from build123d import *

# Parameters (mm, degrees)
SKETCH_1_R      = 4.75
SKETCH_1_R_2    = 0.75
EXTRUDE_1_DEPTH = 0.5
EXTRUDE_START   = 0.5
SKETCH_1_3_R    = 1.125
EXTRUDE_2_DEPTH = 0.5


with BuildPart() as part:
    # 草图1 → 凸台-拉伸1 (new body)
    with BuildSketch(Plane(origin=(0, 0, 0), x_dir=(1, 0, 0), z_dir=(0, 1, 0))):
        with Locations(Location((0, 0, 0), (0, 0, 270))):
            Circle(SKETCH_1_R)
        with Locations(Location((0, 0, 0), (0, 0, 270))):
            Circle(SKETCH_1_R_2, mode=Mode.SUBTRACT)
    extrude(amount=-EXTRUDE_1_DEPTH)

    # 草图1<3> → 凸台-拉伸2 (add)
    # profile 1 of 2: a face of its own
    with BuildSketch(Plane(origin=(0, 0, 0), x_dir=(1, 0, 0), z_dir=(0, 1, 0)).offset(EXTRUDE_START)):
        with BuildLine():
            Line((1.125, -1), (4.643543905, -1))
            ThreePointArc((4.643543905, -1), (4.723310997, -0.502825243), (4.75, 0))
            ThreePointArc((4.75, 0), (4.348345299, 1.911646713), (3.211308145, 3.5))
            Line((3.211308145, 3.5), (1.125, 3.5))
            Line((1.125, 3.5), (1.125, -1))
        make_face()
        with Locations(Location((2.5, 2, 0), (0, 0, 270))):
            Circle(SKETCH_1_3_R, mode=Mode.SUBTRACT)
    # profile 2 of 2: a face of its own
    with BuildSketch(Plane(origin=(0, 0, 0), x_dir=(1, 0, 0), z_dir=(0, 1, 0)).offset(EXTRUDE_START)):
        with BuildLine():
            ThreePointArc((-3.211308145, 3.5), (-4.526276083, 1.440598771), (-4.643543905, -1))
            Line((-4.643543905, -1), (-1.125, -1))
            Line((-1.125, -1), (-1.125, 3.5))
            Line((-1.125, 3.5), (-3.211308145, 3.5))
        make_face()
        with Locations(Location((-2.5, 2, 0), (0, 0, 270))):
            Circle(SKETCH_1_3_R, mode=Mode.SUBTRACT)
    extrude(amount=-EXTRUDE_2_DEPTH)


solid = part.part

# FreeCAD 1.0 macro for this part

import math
import FreeCAD as App
import Part
import Sketcher

V = App.Vector

doc = App.newDocument("Part")
body = doc.addObject("PartDesign::Body", "Body")

# Sketch on XZ plane
sketch1 = body.newObject("Sketcher::SketchObject", "Sketch")
sketch1.AttachmentSupport = (doc.getObject("XZ_Plane"), [""])
sketch1.MapMode = "FlatFace"
sketch1.addGeometry([
    Part.Circle(V(0, 0, 0), V(0, 0, 1), 4.8),
    Part.Circle(V(0, 0, 0), V(0, 0, 1), 0.8),
], False)
sketch1.addConstraint([
    Sketcher.Constraint("Coincident", 0, 3, -1, 1),
    Sketcher.Constraint("Coincident", 1, 3, -1, 1),
    Sketcher.Constraint("Diameter", 0, 9.5),
    Sketcher.Constraint("Diameter", 1, 1.5),
])
pad1 = body.newObject("PartDesign::Pad", "Pad")
pad1.Profile = sketch1
pad1.Length = 0.5

# Sketch on XZ plane
sketch2 = body.newObject("Sketcher::SketchObject", "Sketch001")
sketch2.AttachmentSupport = (doc.getObject("XZ_Plane"), [""])
sketch2.MapMode = "FlatFace"
sketch2.AttachmentOffset = App.Placement(V(0, 0, -0.5), App.Rotation())
sketch2.addGeometry([
    Part.LineSegment(V(1.1, 1, 0), V(4.6, 1, 0)),  # 0
    Part.ArcOfCircle(Part.Circle(V(0, 0, 0), V(0, 0, 1), 4.7), math.radians(0), math.radians(12.15)),  # 1
    Part.ArcOfCircle(Part.Circle(V(0, 0, 0), V(0, 0, 1), 4.8), math.radians(-47), math.radians(0)),  # 2
    Part.LineSegment(V(3.2, -3.5, 0), V(1.1, -3.5, 0)),  # 3
    Part.LineSegment(V(1.1, -3.5, 0), V(1.1, 1, 0)),  # 4
    Part.Circle(V(2.5, -2, 0), V(0, 0, 1), 1.1),  # 5
    Part.ArcOfCircle(Part.Circle(V(0, 0, 0), V(0, 0, 1), 4.8), math.radians(168), math.radians(227)),  # 6
    Part.LineSegment(V(-4.6, 1, 0), V(-1.1, 1, 0)),  # 7
    Part.LineSegment(V(-1.1, 1, 0), V(-1.1, -3.5, 0)),  # 8
    Part.LineSegment(V(-1.1, -3.5, 0), V(-3.2, -3.5, 0)),  # 9
    Part.Circle(V(-2.5, -2, 0), V(0, 0, 1), 1.1),  # 10
], False)
sketch2.addConstraint([
    Sketcher.Constraint("Coincident", 0, 2, 1, 2),
    Sketcher.Constraint("Tangent", 1, 1, 2, 2),
    Sketcher.Constraint("Coincident", 2, 1, 3, 1),
    Sketcher.Constraint("Coincident", 3, 2, 4, 1),
    Sketcher.Constraint("Coincident", 4, 2, 0, 1),
    Sketcher.Constraint("Coincident", 6, 1, 7, 1),
    Sketcher.Constraint("Coincident", 7, 2, 8, 1),
    Sketcher.Constraint("Coincident", 8, 2, 9, 1),
    Sketcher.Constraint("Coincident", 9, 2, 6, 2),
    Sketcher.Constraint("Horizontal", 0),
    Sketcher.Constraint("Horizontal", 3),
    Sketcher.Constraint("Vertical", 4),
    Sketcher.Constraint("Horizontal", 7),
    Sketcher.Constraint("Vertical", 8),
    Sketcher.Constraint("Horizontal", 9),
    Sketcher.Constraint("Coincident", 1, 3, -1, 1),
    Sketcher.Constraint("Coincident", 6, 3, -1, 1),
    Sketcher.Constraint("Equal", 1, 2),
    Sketcher.Constraint("Equal", 2, 6),
    Sketcher.Constraint("Equal", 5, 10),
    Sketcher.Constraint("Symmetric", 5, 3, 10, 3, -2),
    Sketcher.Constraint("Symmetric", 4, 2, 7, 2, -2),
    Sketcher.Constraint("PointOnObject", 1, 1, -1),
    Sketcher.Constraint("Horizontal", 3, 2, 8, 2),
    Sketcher.Constraint("Diameter", 5, 2.25),
    Sketcher.Constraint("Radius", 1, 4.75),
    Sketcher.Constraint("DistanceY", 4, 1, 4, 2, 4.5),
    Sketcher.Constraint("DistanceY", 5, 3, -1, 1, 2.0),
    Sketcher.Constraint("DistanceY", -1, 1, 0, 2, 1.0),
    Sketcher.Constraint("DistanceX", 10, 3, 5, 3, 5.0),
    Sketcher.Constraint("DistanceX", 7, 2, 4, 2, 2.25),
])
pad2 = body.newObject("PartDesign::Pad", "Pad001")
pad2.Profile = sketch2
pad2.Length = 0.5

doc.recompute()
